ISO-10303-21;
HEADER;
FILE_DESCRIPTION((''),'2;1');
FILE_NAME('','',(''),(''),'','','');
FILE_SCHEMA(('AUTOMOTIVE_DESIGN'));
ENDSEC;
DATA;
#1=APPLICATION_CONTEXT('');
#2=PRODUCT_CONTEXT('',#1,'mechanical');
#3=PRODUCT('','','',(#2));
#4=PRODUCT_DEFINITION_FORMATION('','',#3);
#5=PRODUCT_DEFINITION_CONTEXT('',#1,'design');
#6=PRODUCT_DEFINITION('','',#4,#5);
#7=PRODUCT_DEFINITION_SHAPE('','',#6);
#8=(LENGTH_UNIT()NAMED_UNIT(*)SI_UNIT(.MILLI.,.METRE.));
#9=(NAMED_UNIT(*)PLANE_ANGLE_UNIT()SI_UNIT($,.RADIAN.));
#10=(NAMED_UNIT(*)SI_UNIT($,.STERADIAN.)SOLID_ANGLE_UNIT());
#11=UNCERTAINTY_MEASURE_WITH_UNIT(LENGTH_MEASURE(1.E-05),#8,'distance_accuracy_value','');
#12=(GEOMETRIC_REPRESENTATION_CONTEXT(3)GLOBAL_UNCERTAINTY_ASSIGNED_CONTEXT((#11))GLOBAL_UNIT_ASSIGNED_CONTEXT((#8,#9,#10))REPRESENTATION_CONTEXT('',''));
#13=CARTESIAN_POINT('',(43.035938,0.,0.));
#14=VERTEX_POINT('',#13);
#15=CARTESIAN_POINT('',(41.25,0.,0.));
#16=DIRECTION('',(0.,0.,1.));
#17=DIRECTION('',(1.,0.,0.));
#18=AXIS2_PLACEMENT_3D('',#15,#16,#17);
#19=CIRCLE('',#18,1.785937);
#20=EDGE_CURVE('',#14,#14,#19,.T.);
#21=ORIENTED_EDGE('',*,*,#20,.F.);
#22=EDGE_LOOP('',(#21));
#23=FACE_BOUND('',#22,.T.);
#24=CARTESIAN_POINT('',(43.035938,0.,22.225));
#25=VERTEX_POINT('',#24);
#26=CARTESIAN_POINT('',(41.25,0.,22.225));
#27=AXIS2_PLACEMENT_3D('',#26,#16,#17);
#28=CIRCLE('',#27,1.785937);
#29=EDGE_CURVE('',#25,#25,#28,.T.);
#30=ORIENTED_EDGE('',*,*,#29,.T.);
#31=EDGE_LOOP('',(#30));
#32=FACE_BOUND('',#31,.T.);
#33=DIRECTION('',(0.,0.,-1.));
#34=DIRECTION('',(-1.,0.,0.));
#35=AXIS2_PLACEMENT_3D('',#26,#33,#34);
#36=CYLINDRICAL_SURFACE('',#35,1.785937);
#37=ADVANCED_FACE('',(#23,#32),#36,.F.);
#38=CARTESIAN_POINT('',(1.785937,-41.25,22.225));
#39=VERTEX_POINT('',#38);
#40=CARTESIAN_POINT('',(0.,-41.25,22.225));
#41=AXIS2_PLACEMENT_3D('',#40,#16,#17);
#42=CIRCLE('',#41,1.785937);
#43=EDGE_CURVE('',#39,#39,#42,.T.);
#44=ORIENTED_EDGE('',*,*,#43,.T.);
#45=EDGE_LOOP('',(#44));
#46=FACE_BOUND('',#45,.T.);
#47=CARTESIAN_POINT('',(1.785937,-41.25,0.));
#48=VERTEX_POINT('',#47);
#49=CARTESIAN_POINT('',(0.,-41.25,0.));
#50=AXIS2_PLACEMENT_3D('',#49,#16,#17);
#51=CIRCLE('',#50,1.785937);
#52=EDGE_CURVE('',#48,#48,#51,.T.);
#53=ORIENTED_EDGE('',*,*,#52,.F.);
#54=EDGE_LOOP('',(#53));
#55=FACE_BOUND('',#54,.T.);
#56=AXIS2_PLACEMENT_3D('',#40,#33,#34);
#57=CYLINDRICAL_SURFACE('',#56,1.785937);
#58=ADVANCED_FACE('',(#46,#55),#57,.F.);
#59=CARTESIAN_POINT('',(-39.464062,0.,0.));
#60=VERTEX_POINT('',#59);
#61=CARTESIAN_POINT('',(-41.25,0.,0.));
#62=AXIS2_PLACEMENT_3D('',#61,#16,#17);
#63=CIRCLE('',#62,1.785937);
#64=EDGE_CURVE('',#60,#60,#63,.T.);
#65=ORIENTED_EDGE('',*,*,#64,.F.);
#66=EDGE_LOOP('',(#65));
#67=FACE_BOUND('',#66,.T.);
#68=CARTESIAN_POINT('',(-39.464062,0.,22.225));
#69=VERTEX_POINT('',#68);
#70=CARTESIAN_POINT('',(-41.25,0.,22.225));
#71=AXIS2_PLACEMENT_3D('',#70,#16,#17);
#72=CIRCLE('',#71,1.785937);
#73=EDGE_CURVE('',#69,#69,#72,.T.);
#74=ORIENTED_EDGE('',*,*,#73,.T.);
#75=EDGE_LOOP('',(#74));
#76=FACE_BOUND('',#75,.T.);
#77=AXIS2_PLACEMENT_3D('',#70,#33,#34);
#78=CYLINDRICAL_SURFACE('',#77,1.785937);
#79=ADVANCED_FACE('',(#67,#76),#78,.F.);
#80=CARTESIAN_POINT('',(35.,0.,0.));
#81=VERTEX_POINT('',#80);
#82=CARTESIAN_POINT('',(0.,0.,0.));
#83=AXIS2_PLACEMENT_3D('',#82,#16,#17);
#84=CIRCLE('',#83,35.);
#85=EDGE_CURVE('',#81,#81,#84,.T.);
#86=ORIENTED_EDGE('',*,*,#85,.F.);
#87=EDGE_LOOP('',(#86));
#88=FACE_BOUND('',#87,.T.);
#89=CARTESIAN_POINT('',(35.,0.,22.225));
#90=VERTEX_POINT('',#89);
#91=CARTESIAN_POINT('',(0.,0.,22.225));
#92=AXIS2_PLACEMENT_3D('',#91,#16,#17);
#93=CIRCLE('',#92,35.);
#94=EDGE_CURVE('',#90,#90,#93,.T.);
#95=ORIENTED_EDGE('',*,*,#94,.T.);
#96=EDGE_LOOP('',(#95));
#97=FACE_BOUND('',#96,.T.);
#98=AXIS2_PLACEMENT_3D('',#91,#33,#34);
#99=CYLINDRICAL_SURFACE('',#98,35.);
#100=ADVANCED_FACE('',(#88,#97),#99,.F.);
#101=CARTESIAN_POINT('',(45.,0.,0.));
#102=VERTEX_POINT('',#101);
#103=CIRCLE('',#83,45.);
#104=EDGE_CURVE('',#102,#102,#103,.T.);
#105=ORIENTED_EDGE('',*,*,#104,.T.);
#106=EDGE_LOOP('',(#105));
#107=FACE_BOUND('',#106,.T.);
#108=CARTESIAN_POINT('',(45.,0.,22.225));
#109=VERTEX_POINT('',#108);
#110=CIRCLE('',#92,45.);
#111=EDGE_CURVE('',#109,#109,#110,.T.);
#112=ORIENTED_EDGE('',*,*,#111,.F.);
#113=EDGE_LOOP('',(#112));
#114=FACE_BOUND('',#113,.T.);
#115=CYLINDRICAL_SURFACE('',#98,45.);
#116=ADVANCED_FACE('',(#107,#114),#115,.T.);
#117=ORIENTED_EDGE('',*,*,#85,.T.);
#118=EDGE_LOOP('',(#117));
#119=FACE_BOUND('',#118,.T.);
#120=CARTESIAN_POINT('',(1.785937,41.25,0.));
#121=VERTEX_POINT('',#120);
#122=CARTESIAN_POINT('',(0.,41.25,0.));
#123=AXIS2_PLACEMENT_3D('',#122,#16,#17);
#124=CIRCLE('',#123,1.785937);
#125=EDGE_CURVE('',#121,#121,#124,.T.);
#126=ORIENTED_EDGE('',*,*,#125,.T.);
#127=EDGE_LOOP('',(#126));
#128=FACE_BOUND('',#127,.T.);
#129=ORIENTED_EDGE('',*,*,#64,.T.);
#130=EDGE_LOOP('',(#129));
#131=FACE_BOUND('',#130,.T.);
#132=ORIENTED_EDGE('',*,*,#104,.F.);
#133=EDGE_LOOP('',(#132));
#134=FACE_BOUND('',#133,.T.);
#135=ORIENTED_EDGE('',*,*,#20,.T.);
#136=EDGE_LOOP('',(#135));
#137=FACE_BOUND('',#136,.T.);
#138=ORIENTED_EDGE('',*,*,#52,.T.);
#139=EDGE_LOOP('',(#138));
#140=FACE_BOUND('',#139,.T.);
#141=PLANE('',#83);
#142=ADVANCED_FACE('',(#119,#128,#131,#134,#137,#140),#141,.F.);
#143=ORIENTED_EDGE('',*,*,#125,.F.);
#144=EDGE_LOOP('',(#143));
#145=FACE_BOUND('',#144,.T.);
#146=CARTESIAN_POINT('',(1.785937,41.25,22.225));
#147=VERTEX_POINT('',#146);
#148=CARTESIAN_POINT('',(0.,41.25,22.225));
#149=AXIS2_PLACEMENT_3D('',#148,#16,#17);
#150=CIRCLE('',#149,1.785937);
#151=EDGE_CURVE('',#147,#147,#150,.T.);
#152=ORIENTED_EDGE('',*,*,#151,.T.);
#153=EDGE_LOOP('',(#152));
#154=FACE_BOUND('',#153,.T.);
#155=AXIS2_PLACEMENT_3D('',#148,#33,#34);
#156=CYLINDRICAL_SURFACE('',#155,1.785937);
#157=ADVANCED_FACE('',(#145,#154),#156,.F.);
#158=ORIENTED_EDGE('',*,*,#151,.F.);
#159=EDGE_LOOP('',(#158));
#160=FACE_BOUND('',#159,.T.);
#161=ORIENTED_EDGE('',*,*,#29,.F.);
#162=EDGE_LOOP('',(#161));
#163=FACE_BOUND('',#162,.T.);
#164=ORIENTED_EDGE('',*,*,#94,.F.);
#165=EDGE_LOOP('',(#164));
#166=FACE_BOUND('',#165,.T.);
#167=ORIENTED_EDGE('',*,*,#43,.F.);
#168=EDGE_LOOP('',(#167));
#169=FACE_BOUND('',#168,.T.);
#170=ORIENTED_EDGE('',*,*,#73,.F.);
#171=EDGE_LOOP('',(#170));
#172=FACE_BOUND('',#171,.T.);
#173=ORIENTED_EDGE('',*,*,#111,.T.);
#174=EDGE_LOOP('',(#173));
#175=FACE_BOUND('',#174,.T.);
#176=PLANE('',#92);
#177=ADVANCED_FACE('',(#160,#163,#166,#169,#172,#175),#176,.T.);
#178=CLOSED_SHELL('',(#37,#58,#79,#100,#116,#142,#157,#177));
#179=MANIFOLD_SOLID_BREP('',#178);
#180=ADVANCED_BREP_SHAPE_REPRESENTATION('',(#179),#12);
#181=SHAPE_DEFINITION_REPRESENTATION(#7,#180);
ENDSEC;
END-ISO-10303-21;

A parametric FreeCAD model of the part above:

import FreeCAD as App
import Part
import Sketcher
from FreeCAD import Vector

doc = App.newDocument("Part")
body = doc.addObject("PartDesign::Body", "Body")

sketch1 = body.newObject("Sketcher::SketchObject", "Sketch")
sketch1.AttachmentSupport = (doc.getObject("XY_Plane"), [""])
sketch1.MapMode = "FlatFace"
sketch1.addGeometry([
    Part.Circle(Vector(0, 0, 0), Vector(0, 0, 1), 45),
    Part.Circle(Vector(0, -41.2, 0), Vector(0, 0, 1), 1.8),
    Part.Circle(Vector(-41.2, 0, 0), Vector(0, 0, 1), 1.8),
    Part.Circle(Vector(0, 0, 0), Vector(0, 0, 1), 35),
    Part.Circle(Vector(41.2, 0, 0), Vector(0, 0, 1), 1.8),
    Part.Circle(Vector(0, 41.2, 0), Vector(0, 0, 1), 1.8),
], False)
sketch1.addConstraint([
    Sketcher.Constraint("Coincident", 0, 3, -1, 1),
    Sketcher.Constraint("Coincident", 3, 3, -1, 1),
    Sketcher.Constraint("Equal", 1, 2),
    Sketcher.Constraint("Equal", 2, 4),
    Sketcher.Constraint("Equal", 4, 5),
    Sketcher.Constraint("Symmetric", 2, 3, 4, 3, -1, 1),
    Sketcher.Constraint("Symmetric", 1, 3, 5, 3, -1, 1),
    Sketcher.Constraint("PointOnObject", 1, 3, -2),
    Sketcher.Constraint("PointOnObject", 2, 3, -1),
    Sketcher.Constraint("Diameter", 0, 90.0),
    Sketcher.Constraint("Diameter", 3, 70.0),
    Sketcher.Constraint("DistanceX", 2, 3, 4, 3, 82.5),
    Sketcher.Constraint("DistanceY", 1, 3, 5, 3, 82.5),
    Sketcher.Constraint("Diameter", 1, 3.571875),
])
pad1 = body.newObject("PartDesign::Pad", "Pad")
pad1.Profile = sketch1
pad1.Length = 22.225

doc.recompute()
